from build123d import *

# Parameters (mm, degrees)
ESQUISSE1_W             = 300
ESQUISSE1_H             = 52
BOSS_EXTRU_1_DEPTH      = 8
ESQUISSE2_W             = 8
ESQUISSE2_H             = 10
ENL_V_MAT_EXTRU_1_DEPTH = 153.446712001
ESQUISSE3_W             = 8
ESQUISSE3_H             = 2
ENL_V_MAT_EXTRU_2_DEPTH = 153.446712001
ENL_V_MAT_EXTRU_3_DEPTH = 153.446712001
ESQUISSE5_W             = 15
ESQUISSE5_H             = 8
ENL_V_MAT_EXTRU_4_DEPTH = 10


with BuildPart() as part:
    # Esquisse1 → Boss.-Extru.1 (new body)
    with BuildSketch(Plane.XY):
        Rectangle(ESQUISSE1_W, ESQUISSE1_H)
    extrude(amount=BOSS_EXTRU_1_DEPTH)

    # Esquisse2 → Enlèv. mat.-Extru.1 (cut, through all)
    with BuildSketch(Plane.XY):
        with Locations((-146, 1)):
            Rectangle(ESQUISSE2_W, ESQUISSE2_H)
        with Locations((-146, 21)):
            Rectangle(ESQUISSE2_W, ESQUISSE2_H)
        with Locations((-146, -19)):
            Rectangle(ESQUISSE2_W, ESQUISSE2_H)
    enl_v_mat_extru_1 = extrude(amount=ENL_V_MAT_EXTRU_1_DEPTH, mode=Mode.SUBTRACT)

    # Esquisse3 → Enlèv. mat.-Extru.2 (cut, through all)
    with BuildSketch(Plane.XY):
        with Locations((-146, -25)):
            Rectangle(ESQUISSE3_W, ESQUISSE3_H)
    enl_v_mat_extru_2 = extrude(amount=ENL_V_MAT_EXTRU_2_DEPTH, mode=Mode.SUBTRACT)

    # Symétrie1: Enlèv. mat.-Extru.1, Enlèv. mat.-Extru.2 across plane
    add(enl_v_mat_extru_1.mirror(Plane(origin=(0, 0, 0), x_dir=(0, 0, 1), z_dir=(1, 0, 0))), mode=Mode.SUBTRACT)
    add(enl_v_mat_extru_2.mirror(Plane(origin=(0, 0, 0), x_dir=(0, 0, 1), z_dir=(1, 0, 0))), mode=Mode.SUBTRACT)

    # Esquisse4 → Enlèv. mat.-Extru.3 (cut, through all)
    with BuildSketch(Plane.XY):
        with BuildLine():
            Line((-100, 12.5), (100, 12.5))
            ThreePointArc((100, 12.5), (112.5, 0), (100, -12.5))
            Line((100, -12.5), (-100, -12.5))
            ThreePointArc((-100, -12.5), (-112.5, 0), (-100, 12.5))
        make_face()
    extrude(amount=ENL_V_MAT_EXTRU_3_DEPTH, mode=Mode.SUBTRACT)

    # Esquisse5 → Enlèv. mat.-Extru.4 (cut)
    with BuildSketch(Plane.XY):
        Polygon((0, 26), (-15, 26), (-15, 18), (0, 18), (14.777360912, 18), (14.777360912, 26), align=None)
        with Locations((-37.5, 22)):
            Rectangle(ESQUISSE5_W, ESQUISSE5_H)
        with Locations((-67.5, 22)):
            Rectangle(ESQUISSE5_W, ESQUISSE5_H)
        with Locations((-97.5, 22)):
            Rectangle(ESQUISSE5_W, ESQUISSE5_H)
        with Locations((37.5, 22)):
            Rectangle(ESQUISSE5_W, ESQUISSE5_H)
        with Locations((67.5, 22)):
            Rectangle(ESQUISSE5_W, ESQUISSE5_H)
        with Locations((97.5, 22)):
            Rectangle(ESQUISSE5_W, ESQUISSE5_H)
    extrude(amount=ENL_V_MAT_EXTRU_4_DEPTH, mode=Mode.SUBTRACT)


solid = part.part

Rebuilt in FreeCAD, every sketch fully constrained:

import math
import FreeCAD as App
import Part
import Sketcher


def add_polygon(sketch, points):
    """Adds a closed chain of lines whose ends are joined by coincident constraints."""
    first, n = sketch.GeometryCount, len(points)
    for a, b in zip(points, points[1:] + points[:1]):
        sketch.addGeometry(Part.LineSegment(App.Vector(*a, 0), App.Vector(*b, 0)), False)
    for i in range(n):
        sketch.addConstraint(Sketcher.Constraint("Coincident", first + i, 2, first + (i + 1) % n, 1))

doc = App.newDocument("Part")
body = doc.addObject("PartDesign::Body", "Body")

# Sketch on XY plane
sketch1 = doc.addObject("Sketcher::SketchObject", "Sketch")
body.addObject(sketch1)
sketch1.AttachmentSupport = (doc.XY_Plane, [""])
sketch1.MapMode = "FlatFace"
add_polygon(sketch1, [(-150, 26), (-150, -26), (150, -26), (150, 26)])  # lines 0-3
sketch1.addConstraint(Sketcher.Constraint("Vertical", 0))
sketch1.addConstraint(Sketcher.Constraint("Horizontal", 1))
sketch1.addConstraint(Sketcher.Constraint("Vertical", 2))
sketch1.addConstraint(Sketcher.Constraint("Horizontal", 3))
sketch1.addConstraint(Sketcher.Constraint("Symmetric", 0, 2, 2, 2, -1, 1))
sketch1.addConstraint(Sketcher.Constraint("DistanceX", 1, 1, 1, 2, 300.0))
sketch1.addConstraint(Sketcher.Constraint("DistanceY", 0, 2, 0, 1, 52.0))
pad1 = doc.addObject("PartDesign::Pad", "Pad")
body.addObject(pad1)
pad1.Profile = sketch1
pad1.Length = 8

# Sketch on XY plane
sketch2 = doc.addObject("Sketcher::SketchObject", "Sketch001")
body.addObject(sketch2)
sketch2.AttachmentSupport = (doc.XY_Plane, [""])
sketch2.MapMode = "FlatFace"
add_polygon(sketch2, [(-150, 6), (-150, -4), (-142, -4), (-142, 6)])  # lines 0-3
add_polygon(sketch2, [(-150, 26), (-150, 16), (-142, 16), (-142, 26)])  # lines 4-7
add_polygon(sketch2, [(-150, -14), (-150, -24), (-142, -24), (-142, -14)])  # lines 8-11
sketch2.addConstraint(Sketcher.Constraint("Vertical", 0))
sketch2.addConstraint(Sketcher.Constraint("Horizontal", 1))
sketch2.addConstraint(Sketcher.Constraint("Vertical", 2))
sketch2.addConstraint(Sketcher.Constraint("Horizontal", 3))
sketch2.addConstraint(Sketcher.Constraint("Vertical", 4))
sketch2.addConstraint(Sketcher.Constraint("Horizontal", 5))
sketch2.addConstraint(Sketcher.Constraint("Vertical", 6))
sketch2.addConstraint(Sketcher.Constraint("Horizontal", 7))
sketch2.addConstraint(Sketcher.Constraint("Vertical", 8))
sketch2.addConstraint(Sketcher.Constraint("Horizontal", 9))
sketch2.addConstraint(Sketcher.Constraint("Vertical", 10))
sketch2.addConstraint(Sketcher.Constraint("Horizontal", 11))
sketch2.addConstraint(Sketcher.Constraint("Vertical", 3, 2, 4, 2))
sketch2.addConstraint(Sketcher.Constraint("Vertical", 2, 2, 5, 2))
sketch2.addConstraint(Sketcher.Constraint("Vertical", 7, 2, 8, 2))
sketch2.addConstraint(Sketcher.Constraint("Vertical", 6, 2, 9, 2))
sketch2.addConstraint(Sketcher.Constraint("Equal", 2, 4))
sketch2.addConstraint(Sketcher.Constraint("Equal", 6, 8))
sketch2.addConstraint(Sketcher.Constraint("DistanceX", 1, 1, 1, 2, 8.0))
sketch2.addConstraint(Sketcher.Constraint("DistanceY", 0, 2, 0, 1, 10.0))
sketch2.addConstraint(Sketcher.Constraint("DistanceX", 0, 2, -1, 1, 150.0))
sketch2.addConstraint(Sketcher.Constraint("DistanceY", 0, 2, -1, 1, 4.0))
sketch2.addConstraint(Sketcher.Constraint("DistanceY", -1, 1, 4, 2, 16.0))
sketch2.addConstraint(Sketcher.Constraint("DistanceY", 8, 2, -1, 1, 24.0))
pocket1 = doc.addObject("PartDesign::Pocket", "Pocket")
body.addObject(pocket1)
pocket1.Profile = sketch2
pocket1.Type = "ThroughAll"
pocket1.Reversed = True

# Sketch on XY plane
sketch3 = doc.addObject("Sketcher::SketchObject", "Sketch002")
body.addObject(sketch3)
sketch3.AttachmentSupport = (doc.XY_Plane, [""])
sketch3.MapMode = "FlatFace"
add_polygon(sketch3, [(-150, -24), (-150, -26), (-142, -26), (-142, -24)])  # lines 0-3
sketch3.addConstraint(Sketcher.Constraint("Vertical", 0))
sketch3.addConstraint(Sketcher.Constraint("Horizontal", 1))
sketch3.addConstraint(Sketcher.Constraint("Vertical", 2))
sketch3.addConstraint(Sketcher.Constraint("Horizontal", 3))
sketch3.addConstraint(Sketcher.Constraint("DistanceX", 1, 1, 1, 2, 8.0))
sketch3.addConstraint(Sketcher.Constraint("DistanceY", 0, 2, 0, 1, 2.0))
sketch3.addConstraint(Sketcher.Constraint("DistanceX", 0, 2, -1, 1, 150.0))
sketch3.addConstraint(Sketcher.Constraint("DistanceY", 0, 2, -1, 1, 26.0))
pocket2 = doc.addObject("PartDesign::Pocket", "Pocket001")
body.addObject(pocket2)
pocket2.Profile = sketch3
pocket2.Type = "ThroughAll"
pocket2.Reversed = True
doc.recompute()

mirrored = doc.addObject("PartDesign::Mirrored", "Mirrored")
body.addObject(mirrored)
mirrored.Originals = [pocket1, pocket2]
mirrored.MirrorPlane = (doc.YZ_Plane, [""])
body.Tip = mirrored

# Sketch on XY plane
sketch4 = doc.addObject("Sketcher::SketchObject", "Sketch003")
body.addObject(sketch4)
sketch4.AttachmentSupport = (doc.XY_Plane, [""])
sketch4.MapMode = "FlatFace"
sketch4.addGeometry(Part.LineSegment(App.Vector(100, 12, 0), App.Vector(-100, 12, 0)), False)
sketch4.addGeometry(Part.ArcOfCircle(Part.Circle(App.Vector(-100, 0, 0), App.Vector(0, 0, 1), 12), math.radians(90), math.radians(270)), False)
sketch4.addGeometry(Part.LineSegment(App.Vector(-100, -12, 0), App.Vector(100, -12, 0)), False)
sketch4.addGeometry(Part.ArcOfCircle(Part.Circle(App.Vector(100, 0, 0), App.Vector(0, 0, 1), 12), math.radians(-90), math.radians(90)), False)
sketch4.addConstraint(Sketcher.Constraint("Tangent", 0, 2, 1, 1))
sketch4.addConstraint(Sketcher.Constraint("Tangent", 1, 2, 2, 1))
sketch4.addConstraint(Sketcher.Constraint("Tangent", 2, 2, 3, 1))
sketch4.addConstraint(Sketcher.Constraint("Tangent", 3, 2, 0, 1))
sketch4.addConstraint(Sketcher.Constraint("Horizontal", 0))
sketch4.addConstraint(Sketcher.Constraint("Horizontal", 2))
sketch4.addConstraint(Sketcher.Constraint("Symmetric", 1, 3, 3, 3, -1, 1))
sketch4.addConstraint(Sketcher.Constraint("Radius", 1, 12.5))
sketch4.addConstraint(Sketcher.Constraint("DistanceX", 0, 2, 0, 1, 200.0))
pocket3 = doc.addObject("PartDesign::Pocket", "Pocket002")
body.addObject(pocket3)
pocket3.Profile = sketch4
pocket3.Type = "ThroughAll"
pocket3.Reversed = True

# Sketch on XY plane
sketch5 = doc.addObject("Sketcher::SketchObject", "Sketch004")
body.addObject(sketch5)
sketch5.AttachmentSupport = (doc.XY_Plane, [""])
sketch5.MapMode = "FlatFace"
add_polygon(sketch5, [(-15, 26), (-15, 18), (15, 18), (15, 26)])  # lines 0-3
add_polygon(sketch5, [(-45, 26), (-45, 18), (-30, 18), (-30, 26)])  # lines 4-7
add_polygon(sketch5, [(-75, 26), (-75, 18), (-60, 18), (-60, 26)])  # lines 8-11
add_polygon(sketch5, [(-105, 26), (-105, 18), (-90, 18), (-90, 26)])  # lines 12-15
add_polygon(sketch5, [(30, 26), (30, 18), (45, 18), (45, 26)])  # lines 16-19
add_polygon(sketch5, [(60, 26), (60, 18), (75, 18), (75, 26)])  # lines 20-23
add_polygon(sketch5, [(90, 26), (90, 18), (105, 18), (105, 26)])  # lines 24-27
sketch5.addConstraint(Sketcher.Constraint("Vertical", 0))
sketch5.addConstraint(Sketcher.Constraint("Horizontal", 1))
sketch5.addConstraint(Sketcher.Constraint("Vertical", 2))
sketch5.addConstraint(Sketcher.Constraint("Horizontal", 3))
sketch5.addConstraint(Sketcher.Constraint("Vertical", 4))
sketch5.addConstraint(Sketcher.Constraint("Horizontal", 5))
sketch5.addConstraint(Sketcher.Constraint("Vertical", 6))
sketch5.addConstraint(Sketcher.Constraint("Horizontal", 7))
sketch5.addConstraint(Sketcher.Constraint("Vertical", 8))
sketch5.addConstraint(Sketcher.Constraint("Horizontal", 9))
sketch5.addConstraint(Sketcher.Constraint("Vertical", 10))
sketch5.addConstraint(Sketcher.Constraint("Horizontal", 11))
sketch5.addConstraint(Sketcher.Constraint("Vertical", 12))
sketch5.addConstraint(Sketcher.Constraint("Horizontal", 13))
sketch5.addConstraint(Sketcher.Constraint("Vertical", 14))
sketch5.addConstraint(Sketcher.Constraint("Horizontal", 15))
sketch5.addConstraint(Sketcher.Constraint("Vertical", 16))
sketch5.addConstraint(Sketcher.Constraint("Horizontal", 17))
sketch5.addConstraint(Sketcher.Constraint("Vertical", 18))
sketch5.addConstraint(Sketcher.Constraint("Horizontal", 19))
sketch5.addConstraint(Sketcher.Constraint("Vertical", 20))
sketch5.addConstraint(Sketcher.Constraint("Horizontal", 21))
sketch5.addConstraint(Sketcher.Constraint("Vertical", 22))
sketch5.addConstraint(Sketcher.Constraint("Horizontal", 23))
sketch5.addConstraint(Sketcher.Constraint("Vertical", 24))
sketch5.addConstraint(Sketcher.Constraint("Horizontal", 25))
sketch5.addConstraint(Sketcher.Constraint("Vertical", 26))
sketch5.addConstraint(Sketcher.Constraint("Horizontal", 27))
sketch5.addConstraint(Sketcher.Constraint("Symmetric", 5, 2, 16, 2, -2))
sketch5.addConstraint(Sketcher.Constraint("Symmetric", 7, 2, 18, 2, -2))
sketch5.addConstraint(Sketcher.Constraint("Symmetric", 9, 2, 20, 2, -2))
sketch5.addConstraint(Sketcher.Constraint("Symmetric", 11, 2, 22, 2, -2))
sketch5.addConstraint(Sketcher.Constraint("Symmetric", 13, 2, 24, 2, -2))
sketch5.addConstraint(Sketcher.Constraint("Symmetric", 15, 2, 26, 2, -2))
sketch5.addConstraint(Sketcher.Constraint("Horizontal", 1, 2, 4, 2))
sketch5.addConstraint(Sketcher.Constraint("Horizontal", 3, 2, 6, 2))
sketch5.addConstraint(Sketcher.Constraint("Horizontal", 5, 2, 8, 2))
sketch5.addConstraint(Sketcher.Constraint("Horizontal", 7, 2, 10, 2))
sketch5.addConstraint(Sketcher.Constraint("Horizontal", 9, 2, 12, 2))
sketch5.addConstraint(Sketcher.Constraint("Horizontal", 11, 2, 14, 2))
sketch5.addConstraint(Sketcher.Constraint("Equal", 7, 9))
sketch5.addConstraint(Sketcher.Constraint("Equal", 11, 13))
sketch5.addConstraint(Sketcher.Constraint("DistanceX", 5, 1, 5, 2, 15.0))
sketch5.addConstraint(Sketcher.Constraint("DistanceY", 0, 2, 0, 1, 8.0))
sketch5.addConstraint(Sketcher.Constraint("DistanceX", 0, 2, -1, 1, 15.0))
sketch5.addConstraint(Sketcher.Constraint("DistanceY", -1, 1, 0, 2, 18.0))
sketch5.addConstraint(Sketcher.Constraint("DistanceX", 4, 2, -1, 1, 45.0))
sketch5.addConstraint(Sketcher.Constraint("DistanceX", 8, 2, -1, 1, 75.0))
sketch5.addConstraint(Sketcher.Constraint("DistanceX", 12, 2, -1, 1, 105.0))
sketch5.addConstraint(Sketcher.Constraint("DistanceX", 1, 1, 1, 2, 29.777361))
pocket4 = doc.addObject("PartDesign::Pocket", "Pocket003")
body.addObject(pocket4)
pocket4.Profile = sketch5
pocket4.Length = 10
pocket4.Reversed = True

doc.recompute()
